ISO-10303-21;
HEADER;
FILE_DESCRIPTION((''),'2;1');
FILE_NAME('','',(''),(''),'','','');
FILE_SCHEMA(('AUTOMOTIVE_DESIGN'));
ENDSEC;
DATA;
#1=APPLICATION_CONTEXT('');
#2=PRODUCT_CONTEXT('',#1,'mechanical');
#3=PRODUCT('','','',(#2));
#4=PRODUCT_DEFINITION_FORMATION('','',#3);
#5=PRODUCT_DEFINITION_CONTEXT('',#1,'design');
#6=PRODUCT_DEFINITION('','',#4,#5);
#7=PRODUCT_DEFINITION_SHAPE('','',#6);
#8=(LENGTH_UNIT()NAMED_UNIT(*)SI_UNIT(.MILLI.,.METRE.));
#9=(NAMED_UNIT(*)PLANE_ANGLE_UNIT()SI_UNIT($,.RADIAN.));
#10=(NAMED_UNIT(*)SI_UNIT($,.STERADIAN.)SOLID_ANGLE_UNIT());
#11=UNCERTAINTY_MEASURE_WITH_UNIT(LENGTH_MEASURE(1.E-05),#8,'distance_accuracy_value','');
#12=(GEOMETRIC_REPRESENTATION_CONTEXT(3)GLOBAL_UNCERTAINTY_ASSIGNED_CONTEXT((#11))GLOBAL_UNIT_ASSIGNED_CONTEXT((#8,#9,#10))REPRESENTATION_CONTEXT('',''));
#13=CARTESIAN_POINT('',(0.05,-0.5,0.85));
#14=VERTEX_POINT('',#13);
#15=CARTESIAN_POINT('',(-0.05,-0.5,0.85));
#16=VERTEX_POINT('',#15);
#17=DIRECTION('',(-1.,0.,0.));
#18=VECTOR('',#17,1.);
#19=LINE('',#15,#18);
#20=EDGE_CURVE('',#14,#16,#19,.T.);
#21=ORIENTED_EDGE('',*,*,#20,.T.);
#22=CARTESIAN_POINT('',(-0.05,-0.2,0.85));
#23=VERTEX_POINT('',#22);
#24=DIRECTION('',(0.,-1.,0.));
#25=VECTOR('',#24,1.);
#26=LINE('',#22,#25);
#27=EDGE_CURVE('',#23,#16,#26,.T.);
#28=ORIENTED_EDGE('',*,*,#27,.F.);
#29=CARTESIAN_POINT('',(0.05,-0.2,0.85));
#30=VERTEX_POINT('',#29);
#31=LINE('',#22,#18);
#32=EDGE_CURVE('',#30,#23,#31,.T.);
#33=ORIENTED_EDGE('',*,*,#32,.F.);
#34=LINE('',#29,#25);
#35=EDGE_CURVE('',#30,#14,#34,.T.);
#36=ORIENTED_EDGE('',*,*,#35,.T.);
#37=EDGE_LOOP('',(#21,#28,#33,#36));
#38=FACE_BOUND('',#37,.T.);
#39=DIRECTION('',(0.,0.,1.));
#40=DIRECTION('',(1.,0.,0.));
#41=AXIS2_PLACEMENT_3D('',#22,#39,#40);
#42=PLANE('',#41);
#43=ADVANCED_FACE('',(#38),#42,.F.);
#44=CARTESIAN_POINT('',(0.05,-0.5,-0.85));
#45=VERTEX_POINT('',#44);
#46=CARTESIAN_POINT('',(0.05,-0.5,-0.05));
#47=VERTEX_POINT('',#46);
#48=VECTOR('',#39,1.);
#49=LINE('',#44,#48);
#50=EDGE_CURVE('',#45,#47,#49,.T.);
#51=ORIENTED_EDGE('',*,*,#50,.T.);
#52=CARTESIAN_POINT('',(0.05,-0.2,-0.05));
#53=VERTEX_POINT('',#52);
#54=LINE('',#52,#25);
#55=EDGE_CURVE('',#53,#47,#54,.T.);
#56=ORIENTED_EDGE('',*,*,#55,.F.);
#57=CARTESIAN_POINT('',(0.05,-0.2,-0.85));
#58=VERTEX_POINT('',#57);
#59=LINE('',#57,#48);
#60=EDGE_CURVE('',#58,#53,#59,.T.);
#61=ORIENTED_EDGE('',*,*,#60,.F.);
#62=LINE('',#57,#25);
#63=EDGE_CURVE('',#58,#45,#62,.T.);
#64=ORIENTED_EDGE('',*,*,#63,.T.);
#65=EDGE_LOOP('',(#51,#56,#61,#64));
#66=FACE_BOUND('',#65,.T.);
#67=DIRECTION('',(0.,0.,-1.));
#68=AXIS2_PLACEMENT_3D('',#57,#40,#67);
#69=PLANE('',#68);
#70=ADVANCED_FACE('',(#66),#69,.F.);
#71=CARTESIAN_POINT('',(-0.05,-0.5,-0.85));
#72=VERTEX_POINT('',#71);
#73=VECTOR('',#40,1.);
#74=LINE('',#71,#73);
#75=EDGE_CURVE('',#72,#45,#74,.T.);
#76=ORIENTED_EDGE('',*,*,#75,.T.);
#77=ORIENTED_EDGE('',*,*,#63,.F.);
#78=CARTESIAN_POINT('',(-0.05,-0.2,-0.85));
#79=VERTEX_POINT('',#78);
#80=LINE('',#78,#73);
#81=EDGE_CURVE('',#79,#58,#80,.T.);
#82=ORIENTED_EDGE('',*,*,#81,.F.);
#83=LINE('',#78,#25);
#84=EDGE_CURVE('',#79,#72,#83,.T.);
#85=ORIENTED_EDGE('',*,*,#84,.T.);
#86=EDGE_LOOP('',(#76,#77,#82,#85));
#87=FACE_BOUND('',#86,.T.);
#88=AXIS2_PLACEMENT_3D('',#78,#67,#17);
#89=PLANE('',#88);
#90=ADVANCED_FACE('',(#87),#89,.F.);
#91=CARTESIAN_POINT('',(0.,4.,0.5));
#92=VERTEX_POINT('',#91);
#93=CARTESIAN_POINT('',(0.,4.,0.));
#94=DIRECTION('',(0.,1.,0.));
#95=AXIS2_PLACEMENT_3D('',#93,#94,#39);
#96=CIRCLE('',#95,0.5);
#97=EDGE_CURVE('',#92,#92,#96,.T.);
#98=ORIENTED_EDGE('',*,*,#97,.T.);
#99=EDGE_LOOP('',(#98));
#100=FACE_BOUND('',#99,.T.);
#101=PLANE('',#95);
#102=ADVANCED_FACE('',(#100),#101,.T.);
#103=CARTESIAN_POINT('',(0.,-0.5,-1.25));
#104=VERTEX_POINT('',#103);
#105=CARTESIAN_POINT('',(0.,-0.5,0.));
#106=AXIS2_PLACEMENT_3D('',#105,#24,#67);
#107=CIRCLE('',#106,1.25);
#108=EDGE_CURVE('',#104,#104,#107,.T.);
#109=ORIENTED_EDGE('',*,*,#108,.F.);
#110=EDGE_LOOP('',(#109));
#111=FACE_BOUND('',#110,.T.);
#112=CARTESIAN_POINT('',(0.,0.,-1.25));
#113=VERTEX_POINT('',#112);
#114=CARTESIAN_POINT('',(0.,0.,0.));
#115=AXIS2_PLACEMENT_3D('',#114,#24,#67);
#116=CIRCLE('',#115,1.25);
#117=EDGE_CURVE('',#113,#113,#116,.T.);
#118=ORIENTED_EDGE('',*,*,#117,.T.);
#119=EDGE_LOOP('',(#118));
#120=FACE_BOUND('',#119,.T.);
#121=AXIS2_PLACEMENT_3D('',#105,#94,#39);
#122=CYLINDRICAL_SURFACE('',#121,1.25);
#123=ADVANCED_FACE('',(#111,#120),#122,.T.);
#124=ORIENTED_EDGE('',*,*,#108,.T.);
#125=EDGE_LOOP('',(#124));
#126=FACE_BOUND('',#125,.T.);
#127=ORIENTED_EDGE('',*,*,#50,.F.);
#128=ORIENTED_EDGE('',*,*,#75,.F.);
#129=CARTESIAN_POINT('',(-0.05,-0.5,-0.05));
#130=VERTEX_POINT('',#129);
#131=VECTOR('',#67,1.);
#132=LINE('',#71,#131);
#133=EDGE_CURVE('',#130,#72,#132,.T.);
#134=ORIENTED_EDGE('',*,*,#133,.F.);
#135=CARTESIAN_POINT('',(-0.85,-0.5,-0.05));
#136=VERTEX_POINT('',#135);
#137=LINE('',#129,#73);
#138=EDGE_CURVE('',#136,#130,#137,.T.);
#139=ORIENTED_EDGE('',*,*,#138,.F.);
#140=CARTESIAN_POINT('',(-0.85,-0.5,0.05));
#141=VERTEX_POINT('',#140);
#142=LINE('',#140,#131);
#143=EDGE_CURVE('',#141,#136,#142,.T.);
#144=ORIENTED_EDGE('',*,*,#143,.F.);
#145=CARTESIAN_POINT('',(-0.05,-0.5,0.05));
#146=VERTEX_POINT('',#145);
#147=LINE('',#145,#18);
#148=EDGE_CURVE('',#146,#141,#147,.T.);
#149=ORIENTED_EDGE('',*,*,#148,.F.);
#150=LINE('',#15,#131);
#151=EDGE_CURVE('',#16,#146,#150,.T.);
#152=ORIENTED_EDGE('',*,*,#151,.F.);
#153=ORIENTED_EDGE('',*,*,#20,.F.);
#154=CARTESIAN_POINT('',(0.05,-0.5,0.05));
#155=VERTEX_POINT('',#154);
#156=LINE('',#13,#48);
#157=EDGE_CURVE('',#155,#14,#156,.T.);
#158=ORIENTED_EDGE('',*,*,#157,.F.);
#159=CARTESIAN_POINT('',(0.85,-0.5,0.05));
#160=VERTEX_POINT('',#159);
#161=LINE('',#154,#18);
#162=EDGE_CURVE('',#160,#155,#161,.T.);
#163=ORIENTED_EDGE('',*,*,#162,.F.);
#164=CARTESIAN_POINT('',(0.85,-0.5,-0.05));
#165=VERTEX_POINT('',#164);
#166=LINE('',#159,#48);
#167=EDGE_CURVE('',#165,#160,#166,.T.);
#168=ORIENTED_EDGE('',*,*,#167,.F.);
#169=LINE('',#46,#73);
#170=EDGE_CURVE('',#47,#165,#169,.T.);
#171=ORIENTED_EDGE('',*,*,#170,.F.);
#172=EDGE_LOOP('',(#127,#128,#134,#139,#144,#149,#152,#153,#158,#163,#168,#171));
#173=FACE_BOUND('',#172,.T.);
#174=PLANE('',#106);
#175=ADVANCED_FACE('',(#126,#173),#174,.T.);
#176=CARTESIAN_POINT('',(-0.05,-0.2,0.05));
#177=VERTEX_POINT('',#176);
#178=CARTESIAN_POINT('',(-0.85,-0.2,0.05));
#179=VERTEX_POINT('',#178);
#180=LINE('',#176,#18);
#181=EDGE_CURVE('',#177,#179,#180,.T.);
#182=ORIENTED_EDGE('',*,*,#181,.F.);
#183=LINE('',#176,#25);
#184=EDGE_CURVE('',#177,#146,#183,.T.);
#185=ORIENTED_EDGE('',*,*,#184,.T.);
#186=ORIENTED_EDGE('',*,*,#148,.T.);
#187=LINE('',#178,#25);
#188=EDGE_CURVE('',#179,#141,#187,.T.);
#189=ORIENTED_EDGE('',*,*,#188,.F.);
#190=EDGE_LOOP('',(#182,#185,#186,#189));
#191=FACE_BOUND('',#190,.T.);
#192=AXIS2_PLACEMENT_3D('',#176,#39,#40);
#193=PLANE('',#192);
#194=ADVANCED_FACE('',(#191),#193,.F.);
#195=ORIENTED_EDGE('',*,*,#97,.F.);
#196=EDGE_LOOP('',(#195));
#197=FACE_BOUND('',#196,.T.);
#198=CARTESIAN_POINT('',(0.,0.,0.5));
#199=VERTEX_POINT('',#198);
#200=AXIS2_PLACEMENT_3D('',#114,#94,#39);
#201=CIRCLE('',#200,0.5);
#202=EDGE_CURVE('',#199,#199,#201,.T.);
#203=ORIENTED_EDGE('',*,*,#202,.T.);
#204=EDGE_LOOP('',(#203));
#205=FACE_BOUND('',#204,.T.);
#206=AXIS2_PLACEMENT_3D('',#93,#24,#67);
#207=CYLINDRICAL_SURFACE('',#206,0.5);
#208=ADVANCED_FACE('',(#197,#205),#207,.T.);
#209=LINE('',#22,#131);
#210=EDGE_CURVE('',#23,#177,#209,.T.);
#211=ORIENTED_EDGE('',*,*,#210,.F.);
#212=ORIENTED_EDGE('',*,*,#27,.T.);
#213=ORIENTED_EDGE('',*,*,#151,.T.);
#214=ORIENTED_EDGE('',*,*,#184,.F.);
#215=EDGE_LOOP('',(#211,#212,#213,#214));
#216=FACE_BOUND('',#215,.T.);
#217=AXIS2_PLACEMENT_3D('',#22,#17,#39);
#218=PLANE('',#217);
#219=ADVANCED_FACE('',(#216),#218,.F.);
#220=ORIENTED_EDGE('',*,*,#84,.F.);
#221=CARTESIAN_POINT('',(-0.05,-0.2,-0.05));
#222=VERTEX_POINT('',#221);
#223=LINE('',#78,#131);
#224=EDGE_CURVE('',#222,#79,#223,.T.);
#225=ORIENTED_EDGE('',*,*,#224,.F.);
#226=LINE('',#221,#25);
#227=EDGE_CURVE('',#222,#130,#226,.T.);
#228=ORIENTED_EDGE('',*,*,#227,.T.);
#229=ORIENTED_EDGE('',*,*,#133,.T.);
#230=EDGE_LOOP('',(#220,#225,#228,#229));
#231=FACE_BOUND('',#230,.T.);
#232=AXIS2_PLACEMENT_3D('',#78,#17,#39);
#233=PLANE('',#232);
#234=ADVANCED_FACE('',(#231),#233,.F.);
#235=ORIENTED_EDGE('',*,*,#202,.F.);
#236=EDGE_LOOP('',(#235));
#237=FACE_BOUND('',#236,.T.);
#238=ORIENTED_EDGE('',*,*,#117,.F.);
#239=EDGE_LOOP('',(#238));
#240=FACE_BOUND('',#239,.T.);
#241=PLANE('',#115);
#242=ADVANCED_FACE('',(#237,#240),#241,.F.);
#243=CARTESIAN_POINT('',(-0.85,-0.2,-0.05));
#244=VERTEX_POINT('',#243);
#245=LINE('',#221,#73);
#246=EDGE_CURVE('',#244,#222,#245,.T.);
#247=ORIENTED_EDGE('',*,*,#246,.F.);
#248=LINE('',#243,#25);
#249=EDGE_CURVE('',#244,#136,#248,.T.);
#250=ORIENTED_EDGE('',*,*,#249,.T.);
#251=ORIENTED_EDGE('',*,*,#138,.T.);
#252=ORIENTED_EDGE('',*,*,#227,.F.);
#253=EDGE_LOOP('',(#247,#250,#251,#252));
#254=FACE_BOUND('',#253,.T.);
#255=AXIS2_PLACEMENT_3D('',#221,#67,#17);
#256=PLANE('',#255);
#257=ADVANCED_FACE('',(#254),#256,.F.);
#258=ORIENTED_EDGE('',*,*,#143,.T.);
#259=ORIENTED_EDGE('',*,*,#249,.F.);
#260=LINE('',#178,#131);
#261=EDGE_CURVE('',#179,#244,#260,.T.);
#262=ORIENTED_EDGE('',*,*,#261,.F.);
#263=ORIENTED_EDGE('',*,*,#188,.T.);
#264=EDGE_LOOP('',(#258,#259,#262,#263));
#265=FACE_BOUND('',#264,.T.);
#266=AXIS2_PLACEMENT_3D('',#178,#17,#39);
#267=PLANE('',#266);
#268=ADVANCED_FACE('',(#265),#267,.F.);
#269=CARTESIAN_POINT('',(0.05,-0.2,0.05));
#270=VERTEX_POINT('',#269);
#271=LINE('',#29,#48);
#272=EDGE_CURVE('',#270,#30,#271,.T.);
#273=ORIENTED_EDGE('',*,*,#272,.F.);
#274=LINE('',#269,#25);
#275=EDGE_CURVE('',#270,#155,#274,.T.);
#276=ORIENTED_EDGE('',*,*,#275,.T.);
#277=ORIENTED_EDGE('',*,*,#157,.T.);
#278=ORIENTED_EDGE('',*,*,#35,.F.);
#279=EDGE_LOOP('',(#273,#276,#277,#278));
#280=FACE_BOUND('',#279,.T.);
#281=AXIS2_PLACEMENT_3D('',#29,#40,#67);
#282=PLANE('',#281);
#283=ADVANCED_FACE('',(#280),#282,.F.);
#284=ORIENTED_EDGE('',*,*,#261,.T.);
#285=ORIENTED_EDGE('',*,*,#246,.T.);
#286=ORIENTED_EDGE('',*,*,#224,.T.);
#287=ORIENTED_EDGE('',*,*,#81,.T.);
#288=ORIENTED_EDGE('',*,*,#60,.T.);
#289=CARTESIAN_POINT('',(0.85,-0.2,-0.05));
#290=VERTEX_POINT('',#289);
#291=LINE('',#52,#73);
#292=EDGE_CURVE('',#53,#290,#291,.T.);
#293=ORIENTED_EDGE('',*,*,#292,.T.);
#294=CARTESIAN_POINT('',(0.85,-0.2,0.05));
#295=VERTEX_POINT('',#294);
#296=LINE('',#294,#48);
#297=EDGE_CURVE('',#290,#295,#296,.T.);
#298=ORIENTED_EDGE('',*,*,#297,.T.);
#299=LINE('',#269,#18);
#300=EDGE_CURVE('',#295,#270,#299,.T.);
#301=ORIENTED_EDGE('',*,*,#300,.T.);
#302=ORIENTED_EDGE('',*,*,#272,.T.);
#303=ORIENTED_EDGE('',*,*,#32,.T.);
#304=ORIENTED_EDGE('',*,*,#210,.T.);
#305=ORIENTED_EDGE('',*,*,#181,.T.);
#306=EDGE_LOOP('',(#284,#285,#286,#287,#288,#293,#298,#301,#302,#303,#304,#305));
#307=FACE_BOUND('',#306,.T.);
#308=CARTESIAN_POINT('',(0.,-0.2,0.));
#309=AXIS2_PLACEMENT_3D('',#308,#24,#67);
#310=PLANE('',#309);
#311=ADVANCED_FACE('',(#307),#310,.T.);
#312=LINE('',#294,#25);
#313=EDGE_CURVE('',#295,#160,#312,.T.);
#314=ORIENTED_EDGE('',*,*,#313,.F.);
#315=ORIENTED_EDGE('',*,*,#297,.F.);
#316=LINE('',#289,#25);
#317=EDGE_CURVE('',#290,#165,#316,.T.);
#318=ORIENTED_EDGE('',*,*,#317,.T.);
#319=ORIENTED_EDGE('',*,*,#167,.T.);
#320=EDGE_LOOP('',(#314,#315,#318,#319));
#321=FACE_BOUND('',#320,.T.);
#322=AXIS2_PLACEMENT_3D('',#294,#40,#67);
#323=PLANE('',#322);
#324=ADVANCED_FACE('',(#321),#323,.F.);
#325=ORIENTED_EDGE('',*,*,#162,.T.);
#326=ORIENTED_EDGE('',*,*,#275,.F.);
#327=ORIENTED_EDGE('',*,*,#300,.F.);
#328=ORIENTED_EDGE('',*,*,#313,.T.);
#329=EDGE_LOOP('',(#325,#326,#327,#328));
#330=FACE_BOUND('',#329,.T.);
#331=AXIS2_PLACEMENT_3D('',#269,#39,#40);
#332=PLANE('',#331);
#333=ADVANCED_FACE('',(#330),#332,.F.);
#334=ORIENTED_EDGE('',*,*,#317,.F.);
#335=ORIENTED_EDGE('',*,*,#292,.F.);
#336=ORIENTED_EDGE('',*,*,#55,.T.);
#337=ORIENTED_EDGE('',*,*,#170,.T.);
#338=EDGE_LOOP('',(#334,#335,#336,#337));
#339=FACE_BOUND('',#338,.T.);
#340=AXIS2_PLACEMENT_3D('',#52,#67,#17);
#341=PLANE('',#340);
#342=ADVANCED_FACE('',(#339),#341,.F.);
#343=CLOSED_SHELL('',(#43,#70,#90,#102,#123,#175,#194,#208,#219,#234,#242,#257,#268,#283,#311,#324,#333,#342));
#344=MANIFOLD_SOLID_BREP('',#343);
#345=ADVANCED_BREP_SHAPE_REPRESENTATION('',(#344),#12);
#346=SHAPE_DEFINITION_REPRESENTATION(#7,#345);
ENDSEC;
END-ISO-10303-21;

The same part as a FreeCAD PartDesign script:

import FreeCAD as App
import Part
import Sketcher
from FreeCAD import Vector
Q = App.Units.Quantity

doc = App.newDocument("Part")
body = doc.addObject("PartDesign::Body", "Body")

sketch1 = body.newObject("Sketcher::SketchObject", "Sketch")
sketch1.AttachmentSupport = (doc.getObject("XZ_Plane"), [""])
sketch1.MapMode = "FlatFace"
sketch1.addGeometry(Part.Circle(Vector(0, 0, 0), Vector(0, 0, 1), 0.5), False)
sketch1.addConstraint([
    Sketcher.Constraint("Coincident", 0, 3, -1, 1),
    Sketcher.Constraint("Diameter", 0, Q("1 mm")),
])
pad1 = body.newObject("PartDesign::Pad", "Pad")
pad1.Profile = sketch1
pad1.Length = 4
pad1.Reversed = True

sketch2 = body.newObject("Sketcher::SketchObject", "Sketch001")
sketch2.AttachmentSupport = (doc.getObject("XZ_Plane"), [""])
sketch2.MapMode = "FlatFace"
sketch2.addGeometry(Part.Circle(Vector(0, 0, 0), Vector(0, 0, 1), 1.25), False)
sketch2.addConstraint([
    Sketcher.Constraint("Coincident", 0, 3, -1, 1),
    Sketcher.Constraint("Diameter", 0, Q("2.5 mm")),
])
pad2 = body.newObject("PartDesign::Pad", "Pad001")
pad2.Profile = sketch2
pad2.Length = 0.5

sketch3 = body.newObject("Sketcher::SketchObject", "Sketch002")
sketch3.AttachmentSupport = (doc.getObject("XZ_Plane"), [""])
sketch3.MapMode = "FlatFace"
sketch3.AttachmentOffset = App.Placement(Vector(0, 0, 0.5), App.Rotation())
sketch3.addGeometry([
    Part.LineSegment(Vector(0.05, 0.85, 0), Vector(-0.05, 0.85, 0)),
    Part.LineSegment(Vector(-0.05, 0.85, 0), Vector(-0.05, 0.05, 0)),
    Part.LineSegment(Vector(-0.05, 0.05, 0), Vector(-0.85, 0.05, 0)),
    Part.LineSegment(Vector(-0.85, 0.05, 0), Vector(-0.85, -0.05, 0)),
    Part.LineSegment(Vector(-0.85, -0.05, 0), Vector(-0.05, -0.05, 0)),
    Part.LineSegment(Vector(-0.05, -0.05, 0), Vector(-0.05, -0.85, 0)),
    Part.LineSegment(Vector(-0.05, -0.85, 0), Vector(0.05, -0.85, 0)),
    Part.LineSegment(Vector(0.05, -0.85, 0), Vector(0.05, -0.05, 0)),
    Part.LineSegment(Vector(0.05, -0.05, 0), Vector(0.85, -0.05, 0)),
    Part.LineSegment(Vector(0.85, -0.05, 0), Vector(0.85, 0.05, 0)),
    Part.LineSegment(Vector(0.85, 0.05, 0), Vector(0.05, 0.05, 0)),
    Part.LineSegment(Vector(0.05, 0.05, 0), Vector(0.05, 0.85, 0)),
], False)
sketch3.addConstraint([
    Sketcher.Constraint("Coincident", 0, 2, 1, 1),
    Sketcher.Constraint("Coincident", 1, 2, 2, 1),
    Sketcher.Constraint("Coincident", 2, 2, 3, 1),
    Sketcher.Constraint("Coincident", 3, 2, 4, 1),
    Sketcher.Constraint("Coincident", 4, 2, 5, 1),
    Sketcher.Constraint("Coincident", 5, 2, 6, 1),
    Sketcher.Constraint("Coincident", 6, 2, 7, 1),
    Sketcher.Constraint("Coincident", 7, 2, 8, 1),
    Sketcher.Constraint("Coincident", 8, 2, 9, 1),
    Sketcher.Constraint("Coincident", 9, 2, 10, 1),
    Sketcher.Constraint("Coincident", 10, 2, 11, 1),
    Sketcher.Constraint("Coincident", 11, 2, 0, 1),
    Sketcher.Constraint("Horizontal", 0),
    Sketcher.Constraint("Vertical", 1),
    Sketcher.Constraint("Horizontal", 2),
    Sketcher.Constraint("Vertical", 3),
    Sketcher.Constraint("Horizontal", 4),
    Sketcher.Constraint("Vertical", 5),
    Sketcher.Constraint("Horizontal", 6),
    Sketcher.Constraint("Vertical", 7),
    Sketcher.Constraint("Horizontal", 8),
    Sketcher.Constraint("Vertical", 9),
    Sketcher.Constraint("Horizontal", 10),
    Sketcher.Constraint("Vertical", 11),
    Sketcher.Constraint("Symmetric", 0, 2, 6, 2, -1, 1),
    Sketcher.Constraint("Symmetric", 2, 2, 8, 2, -1, 1),
    Sketcher.Constraint("Symmetric", 4, 2, 10, 2, -1, 1),
    Sketcher.Constraint("Symmetric", 4, 2, 7, 2, -2),
    Sketcher.Constraint("Equal", 10, 1),
    Sketcher.Constraint("Equal", 6, 3),
    Sketcher.Constraint("DistanceX", 0, 2, 0, 1, Q("0.1 mm")),
    Sketcher.Constraint("DistanceX", 2, 2, 2, 1, Q("0.8 mm")),
])
pocket1 = body.newObject("PartDesign::Pocket", "Pocket")
pocket1.Profile = sketch3
pocket1.Length = 0.3

doc.recompute()
